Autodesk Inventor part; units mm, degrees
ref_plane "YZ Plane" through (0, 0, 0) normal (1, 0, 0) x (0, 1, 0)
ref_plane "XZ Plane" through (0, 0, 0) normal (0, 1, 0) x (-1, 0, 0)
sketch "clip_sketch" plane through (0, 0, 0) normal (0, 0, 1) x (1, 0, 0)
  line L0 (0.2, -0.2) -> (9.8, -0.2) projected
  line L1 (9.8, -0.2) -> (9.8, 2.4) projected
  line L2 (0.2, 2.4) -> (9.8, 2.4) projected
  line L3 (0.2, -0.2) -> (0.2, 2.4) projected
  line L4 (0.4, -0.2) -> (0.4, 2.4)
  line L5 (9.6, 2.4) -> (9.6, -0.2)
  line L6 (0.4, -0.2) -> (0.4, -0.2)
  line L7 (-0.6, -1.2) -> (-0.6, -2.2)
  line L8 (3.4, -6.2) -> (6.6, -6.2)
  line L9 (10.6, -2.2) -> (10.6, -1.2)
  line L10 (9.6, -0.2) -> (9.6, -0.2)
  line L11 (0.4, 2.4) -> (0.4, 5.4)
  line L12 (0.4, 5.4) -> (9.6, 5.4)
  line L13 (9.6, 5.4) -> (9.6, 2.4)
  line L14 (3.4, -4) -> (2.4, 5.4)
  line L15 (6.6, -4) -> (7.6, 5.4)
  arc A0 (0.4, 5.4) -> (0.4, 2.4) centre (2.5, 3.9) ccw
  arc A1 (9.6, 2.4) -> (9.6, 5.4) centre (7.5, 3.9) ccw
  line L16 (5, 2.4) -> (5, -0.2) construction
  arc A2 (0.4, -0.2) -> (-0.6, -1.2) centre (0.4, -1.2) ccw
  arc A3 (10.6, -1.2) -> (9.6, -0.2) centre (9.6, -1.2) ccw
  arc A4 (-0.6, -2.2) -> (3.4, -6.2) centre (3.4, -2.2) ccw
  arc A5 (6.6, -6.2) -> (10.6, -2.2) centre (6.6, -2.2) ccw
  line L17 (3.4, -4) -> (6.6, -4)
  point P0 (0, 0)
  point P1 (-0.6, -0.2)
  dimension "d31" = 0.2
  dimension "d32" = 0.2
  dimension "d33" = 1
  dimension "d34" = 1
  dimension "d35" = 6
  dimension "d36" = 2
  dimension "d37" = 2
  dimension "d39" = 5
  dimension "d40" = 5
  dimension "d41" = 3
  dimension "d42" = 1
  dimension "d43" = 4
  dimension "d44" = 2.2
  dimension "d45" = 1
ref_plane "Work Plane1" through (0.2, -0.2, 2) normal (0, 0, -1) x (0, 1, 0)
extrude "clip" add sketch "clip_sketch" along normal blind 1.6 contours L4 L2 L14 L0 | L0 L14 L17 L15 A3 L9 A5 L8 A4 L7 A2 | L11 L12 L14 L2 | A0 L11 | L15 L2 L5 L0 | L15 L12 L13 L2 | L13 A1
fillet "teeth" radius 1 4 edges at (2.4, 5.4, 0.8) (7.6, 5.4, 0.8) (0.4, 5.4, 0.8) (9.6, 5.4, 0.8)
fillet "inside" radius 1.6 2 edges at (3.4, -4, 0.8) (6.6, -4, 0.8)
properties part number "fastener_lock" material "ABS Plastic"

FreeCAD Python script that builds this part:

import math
import FreeCAD as App
import Part
import Sketcher
from FreeCAD import Vector
Q = App.Units.Quantity


def edges_at(feature, points):
    """Names of the edges that pass closest to the given points."""
    edges = feature.Shape.Edges
    near = lambda p: min(range(len(edges)), key=lambda i: edges[i].distToShape(Part.Vertex(*p))[0])
    return sorted({f"Edge{near(p) + 1}" for p in points})

doc = App.newDocument("Part")
body = doc.addObject("PartDesign::Body", "Body")

# Sketch on XY plane
sketch1 = doc.addObject("Sketcher::SketchObject", "Sketch")
body.addObject(sketch1)
sketch1.AttachmentSupport = (doc.XY_Plane, [""])
sketch1.MapMode = "FlatFace"
sketch1.addGeometry([
    Part.LineSegment(Vector(0.4, 2.4, 0), Vector(0.4, -0.2, 0)),  # 0
    Part.ArcOfCircle(Part.Circle(Vector(0.4, -1.2, 0), Vector(0, 0, 1), 1), math.radians(90), math.radians(180)),  # 1
    Part.LineSegment(Vector(-0.6, -1.2, 0), Vector(-0.6, -2.2, 0)),  # 2
    Part.ArcOfCircle(Part.Circle(Vector(3.4, -2.2, 0), Vector(0, 0, 1), 4), math.radians(180), math.radians(270)),  # 3
    Part.LineSegment(Vector(3.4, -6.2, 0), Vector(6.6, -6.2, 0)),  # 4
    Part.ArcOfCircle(Part.Circle(Vector(6.6, -2.2, 0), Vector(0, 0, 1), 4), math.radians(-90), math.radians(0)),  # 5
    Part.LineSegment(Vector(10.6, -2.2, 0), Vector(10.6, -1.2, 0)),  # 6
    Part.ArcOfCircle(Part.Circle(Vector(9.6, -1.2, 0), Vector(0, 0, 1), 1), math.radians(0), math.radians(90)),  # 7
    Part.LineSegment(Vector(9.6, -0.2, 0), Vector(9.6, 2.4, 0)),  # 8
    Part.ArcOfCircle(Part.Circle(Vector(7.5, 3.9, 0), Vector(0, 0, 1), 2.6), math.radians(-36), math.radians(36)),  # 9
    Part.LineSegment(Vector(9.6, 5.4, 0), Vector(7.6, 5.4, 0)),  # 10
    Part.LineSegment(Vector(7.6, 5.4, 0), Vector(6.6, -4, 0)),  # 11
    Part.LineSegment(Vector(6.6, -4, 0), Vector(3.4, -4, 0)),  # 12
    Part.LineSegment(Vector(3.4, -4, 0), Vector(2.4, 5.4, 0)),  # 13
    Part.LineSegment(Vector(2.4, 5.4, 0), Vector(0.4, 5.4, 0)),  # 14
    Part.ArcOfCircle(Part.Circle(Vector(2.5, 3.9, 0), Vector(0, 0, 1), 2.6), math.radians(144), math.radians(216)),  # 15
], False)
sketch1.addConstraint([
    Sketcher.Constraint("Coincident", 0, 2, 1, 1),
    Sketcher.Constraint("Tangent", 1, 2, 2, 1),
    Sketcher.Constraint("Tangent", 2, 2, 3, 1),
    Sketcher.Constraint("Tangent", 3, 2, 4, 1),
    Sketcher.Constraint("Tangent", 4, 2, 5, 1),
    Sketcher.Constraint("Tangent", 5, 2, 6, 1),
    Sketcher.Constraint("Tangent", 6, 2, 7, 1),
    Sketcher.Constraint("Coincident", 7, 2, 8, 1),
    Sketcher.Constraint("Coincident", 8, 2, 9, 1),
    Sketcher.Constraint("Coincident", 9, 2, 10, 1),
    Sketcher.Constraint("Coincident", 10, 2, 11, 1),
    Sketcher.Constraint("Coincident", 11, 2, 12, 1),
    Sketcher.Constraint("Coincident", 12, 2, 13, 1),
    Sketcher.Constraint("Coincident", 13, 2, 14, 1),
    Sketcher.Constraint("Coincident", 14, 2, 15, 1),
    Sketcher.Constraint("Coincident", 15, 2, 0, 1),
    Sketcher.Constraint("Vertical", 0),
    Sketcher.Constraint("Vertical", 2),
    Sketcher.Constraint("Horizontal", 4),
    Sketcher.Constraint("Vertical", 6),
    Sketcher.Constraint("Vertical", 8),
    Sketcher.Constraint("Horizontal", 10),
    Sketcher.Constraint("Horizontal", 12),
    Sketcher.Constraint("Horizontal", 14),
    Sketcher.Constraint("Equal", 3, 5),
    Sketcher.Constraint("Equal", 1, 7),
    Sketcher.Constraint("Equal", 9, 15),
    Sketcher.Constraint("Horizontal", 1, 3, 7, 3),
    Sketcher.Constraint("Horizontal", 9, 3, 15, 3),
    Sketcher.Constraint("Horizontal", 10, 2, 13, 2),
    Sketcher.Constraint("Horizontal", 8, 2, 15, 2),
    Sketcher.Constraint("Vertical", 1, 3, 0, 2),
    Sketcher.Constraint("Vertical", 8, 2, 9, 2),
    Sketcher.Constraint("Vertical", 4, 2, 11, 2),
    Sketcher.Constraint("Vertical", 3, 2, 12, 2),
    Sketcher.Constraint("Equal", 10, 14),
    Sketcher.Constraint("Equal", 11, 13),
    Sketcher.Constraint("Radius", 1, Q("1 mm")),
    Sketcher.Constraint("Radius", 3, Q("4 mm")),
    Sketcher.Constraint("DistanceX", 10, 2, 10, 1, Q("2 mm")),
    Sketcher.Constraint("DistanceY", 2, 2, 2, 1, Q("1 mm")),
    Sketcher.Constraint("DistanceY", 11, 2, -1, 1, Q("4 mm")),
    Sketcher.Constraint("DistanceX", 15, 3, 9, 3, Q("5 mm")),
    Sketcher.Constraint("DistanceY", 8, 2, 9, 2, Q("3 mm")),
    Sketcher.Constraint("DistanceY", 3, 3, -1, 1, Q("2.2 mm")),
    Sketcher.Constraint("DistanceX", 4, 1, 4, 2, Q("3.2 mm")),
    Sketcher.Constraint("DistanceY", 0, 2, 0, 1, Q("2.6 mm")),
    Sketcher.Constraint("DistanceX", -1, 1, 1, 3, Q("0.4 mm")),
])
pad1 = doc.addObject("PartDesign::Pad", "Pad")
body.addObject(pad1)
pad1.Profile = sketch1
pad1.Length = 1.6
doc.recompute()

fillet = doc.addObject("PartDesign::Fillet", "Fillet")
body.addObject(fillet)
fillet.Base = (pad1, edges_at(pad1, [
    (2.4, 5.4, 0.8),
    (7.6, 5.4, 0.8),
    (0.4, 5.4, 0.8),
    (9.6, 5.4, 0.8),
]))
fillet.Radius = 1
doc.recompute()

fillet2 = doc.addObject("PartDesign::Fillet", "Fillet001")
body.addObject(fillet2)
fillet2.Base = (fillet, edges_at(fillet, [(3.4, -4, 0.8), (6.6, -4, 0.8)]))
fillet2.Radius = 1.6

doc.recompute()
